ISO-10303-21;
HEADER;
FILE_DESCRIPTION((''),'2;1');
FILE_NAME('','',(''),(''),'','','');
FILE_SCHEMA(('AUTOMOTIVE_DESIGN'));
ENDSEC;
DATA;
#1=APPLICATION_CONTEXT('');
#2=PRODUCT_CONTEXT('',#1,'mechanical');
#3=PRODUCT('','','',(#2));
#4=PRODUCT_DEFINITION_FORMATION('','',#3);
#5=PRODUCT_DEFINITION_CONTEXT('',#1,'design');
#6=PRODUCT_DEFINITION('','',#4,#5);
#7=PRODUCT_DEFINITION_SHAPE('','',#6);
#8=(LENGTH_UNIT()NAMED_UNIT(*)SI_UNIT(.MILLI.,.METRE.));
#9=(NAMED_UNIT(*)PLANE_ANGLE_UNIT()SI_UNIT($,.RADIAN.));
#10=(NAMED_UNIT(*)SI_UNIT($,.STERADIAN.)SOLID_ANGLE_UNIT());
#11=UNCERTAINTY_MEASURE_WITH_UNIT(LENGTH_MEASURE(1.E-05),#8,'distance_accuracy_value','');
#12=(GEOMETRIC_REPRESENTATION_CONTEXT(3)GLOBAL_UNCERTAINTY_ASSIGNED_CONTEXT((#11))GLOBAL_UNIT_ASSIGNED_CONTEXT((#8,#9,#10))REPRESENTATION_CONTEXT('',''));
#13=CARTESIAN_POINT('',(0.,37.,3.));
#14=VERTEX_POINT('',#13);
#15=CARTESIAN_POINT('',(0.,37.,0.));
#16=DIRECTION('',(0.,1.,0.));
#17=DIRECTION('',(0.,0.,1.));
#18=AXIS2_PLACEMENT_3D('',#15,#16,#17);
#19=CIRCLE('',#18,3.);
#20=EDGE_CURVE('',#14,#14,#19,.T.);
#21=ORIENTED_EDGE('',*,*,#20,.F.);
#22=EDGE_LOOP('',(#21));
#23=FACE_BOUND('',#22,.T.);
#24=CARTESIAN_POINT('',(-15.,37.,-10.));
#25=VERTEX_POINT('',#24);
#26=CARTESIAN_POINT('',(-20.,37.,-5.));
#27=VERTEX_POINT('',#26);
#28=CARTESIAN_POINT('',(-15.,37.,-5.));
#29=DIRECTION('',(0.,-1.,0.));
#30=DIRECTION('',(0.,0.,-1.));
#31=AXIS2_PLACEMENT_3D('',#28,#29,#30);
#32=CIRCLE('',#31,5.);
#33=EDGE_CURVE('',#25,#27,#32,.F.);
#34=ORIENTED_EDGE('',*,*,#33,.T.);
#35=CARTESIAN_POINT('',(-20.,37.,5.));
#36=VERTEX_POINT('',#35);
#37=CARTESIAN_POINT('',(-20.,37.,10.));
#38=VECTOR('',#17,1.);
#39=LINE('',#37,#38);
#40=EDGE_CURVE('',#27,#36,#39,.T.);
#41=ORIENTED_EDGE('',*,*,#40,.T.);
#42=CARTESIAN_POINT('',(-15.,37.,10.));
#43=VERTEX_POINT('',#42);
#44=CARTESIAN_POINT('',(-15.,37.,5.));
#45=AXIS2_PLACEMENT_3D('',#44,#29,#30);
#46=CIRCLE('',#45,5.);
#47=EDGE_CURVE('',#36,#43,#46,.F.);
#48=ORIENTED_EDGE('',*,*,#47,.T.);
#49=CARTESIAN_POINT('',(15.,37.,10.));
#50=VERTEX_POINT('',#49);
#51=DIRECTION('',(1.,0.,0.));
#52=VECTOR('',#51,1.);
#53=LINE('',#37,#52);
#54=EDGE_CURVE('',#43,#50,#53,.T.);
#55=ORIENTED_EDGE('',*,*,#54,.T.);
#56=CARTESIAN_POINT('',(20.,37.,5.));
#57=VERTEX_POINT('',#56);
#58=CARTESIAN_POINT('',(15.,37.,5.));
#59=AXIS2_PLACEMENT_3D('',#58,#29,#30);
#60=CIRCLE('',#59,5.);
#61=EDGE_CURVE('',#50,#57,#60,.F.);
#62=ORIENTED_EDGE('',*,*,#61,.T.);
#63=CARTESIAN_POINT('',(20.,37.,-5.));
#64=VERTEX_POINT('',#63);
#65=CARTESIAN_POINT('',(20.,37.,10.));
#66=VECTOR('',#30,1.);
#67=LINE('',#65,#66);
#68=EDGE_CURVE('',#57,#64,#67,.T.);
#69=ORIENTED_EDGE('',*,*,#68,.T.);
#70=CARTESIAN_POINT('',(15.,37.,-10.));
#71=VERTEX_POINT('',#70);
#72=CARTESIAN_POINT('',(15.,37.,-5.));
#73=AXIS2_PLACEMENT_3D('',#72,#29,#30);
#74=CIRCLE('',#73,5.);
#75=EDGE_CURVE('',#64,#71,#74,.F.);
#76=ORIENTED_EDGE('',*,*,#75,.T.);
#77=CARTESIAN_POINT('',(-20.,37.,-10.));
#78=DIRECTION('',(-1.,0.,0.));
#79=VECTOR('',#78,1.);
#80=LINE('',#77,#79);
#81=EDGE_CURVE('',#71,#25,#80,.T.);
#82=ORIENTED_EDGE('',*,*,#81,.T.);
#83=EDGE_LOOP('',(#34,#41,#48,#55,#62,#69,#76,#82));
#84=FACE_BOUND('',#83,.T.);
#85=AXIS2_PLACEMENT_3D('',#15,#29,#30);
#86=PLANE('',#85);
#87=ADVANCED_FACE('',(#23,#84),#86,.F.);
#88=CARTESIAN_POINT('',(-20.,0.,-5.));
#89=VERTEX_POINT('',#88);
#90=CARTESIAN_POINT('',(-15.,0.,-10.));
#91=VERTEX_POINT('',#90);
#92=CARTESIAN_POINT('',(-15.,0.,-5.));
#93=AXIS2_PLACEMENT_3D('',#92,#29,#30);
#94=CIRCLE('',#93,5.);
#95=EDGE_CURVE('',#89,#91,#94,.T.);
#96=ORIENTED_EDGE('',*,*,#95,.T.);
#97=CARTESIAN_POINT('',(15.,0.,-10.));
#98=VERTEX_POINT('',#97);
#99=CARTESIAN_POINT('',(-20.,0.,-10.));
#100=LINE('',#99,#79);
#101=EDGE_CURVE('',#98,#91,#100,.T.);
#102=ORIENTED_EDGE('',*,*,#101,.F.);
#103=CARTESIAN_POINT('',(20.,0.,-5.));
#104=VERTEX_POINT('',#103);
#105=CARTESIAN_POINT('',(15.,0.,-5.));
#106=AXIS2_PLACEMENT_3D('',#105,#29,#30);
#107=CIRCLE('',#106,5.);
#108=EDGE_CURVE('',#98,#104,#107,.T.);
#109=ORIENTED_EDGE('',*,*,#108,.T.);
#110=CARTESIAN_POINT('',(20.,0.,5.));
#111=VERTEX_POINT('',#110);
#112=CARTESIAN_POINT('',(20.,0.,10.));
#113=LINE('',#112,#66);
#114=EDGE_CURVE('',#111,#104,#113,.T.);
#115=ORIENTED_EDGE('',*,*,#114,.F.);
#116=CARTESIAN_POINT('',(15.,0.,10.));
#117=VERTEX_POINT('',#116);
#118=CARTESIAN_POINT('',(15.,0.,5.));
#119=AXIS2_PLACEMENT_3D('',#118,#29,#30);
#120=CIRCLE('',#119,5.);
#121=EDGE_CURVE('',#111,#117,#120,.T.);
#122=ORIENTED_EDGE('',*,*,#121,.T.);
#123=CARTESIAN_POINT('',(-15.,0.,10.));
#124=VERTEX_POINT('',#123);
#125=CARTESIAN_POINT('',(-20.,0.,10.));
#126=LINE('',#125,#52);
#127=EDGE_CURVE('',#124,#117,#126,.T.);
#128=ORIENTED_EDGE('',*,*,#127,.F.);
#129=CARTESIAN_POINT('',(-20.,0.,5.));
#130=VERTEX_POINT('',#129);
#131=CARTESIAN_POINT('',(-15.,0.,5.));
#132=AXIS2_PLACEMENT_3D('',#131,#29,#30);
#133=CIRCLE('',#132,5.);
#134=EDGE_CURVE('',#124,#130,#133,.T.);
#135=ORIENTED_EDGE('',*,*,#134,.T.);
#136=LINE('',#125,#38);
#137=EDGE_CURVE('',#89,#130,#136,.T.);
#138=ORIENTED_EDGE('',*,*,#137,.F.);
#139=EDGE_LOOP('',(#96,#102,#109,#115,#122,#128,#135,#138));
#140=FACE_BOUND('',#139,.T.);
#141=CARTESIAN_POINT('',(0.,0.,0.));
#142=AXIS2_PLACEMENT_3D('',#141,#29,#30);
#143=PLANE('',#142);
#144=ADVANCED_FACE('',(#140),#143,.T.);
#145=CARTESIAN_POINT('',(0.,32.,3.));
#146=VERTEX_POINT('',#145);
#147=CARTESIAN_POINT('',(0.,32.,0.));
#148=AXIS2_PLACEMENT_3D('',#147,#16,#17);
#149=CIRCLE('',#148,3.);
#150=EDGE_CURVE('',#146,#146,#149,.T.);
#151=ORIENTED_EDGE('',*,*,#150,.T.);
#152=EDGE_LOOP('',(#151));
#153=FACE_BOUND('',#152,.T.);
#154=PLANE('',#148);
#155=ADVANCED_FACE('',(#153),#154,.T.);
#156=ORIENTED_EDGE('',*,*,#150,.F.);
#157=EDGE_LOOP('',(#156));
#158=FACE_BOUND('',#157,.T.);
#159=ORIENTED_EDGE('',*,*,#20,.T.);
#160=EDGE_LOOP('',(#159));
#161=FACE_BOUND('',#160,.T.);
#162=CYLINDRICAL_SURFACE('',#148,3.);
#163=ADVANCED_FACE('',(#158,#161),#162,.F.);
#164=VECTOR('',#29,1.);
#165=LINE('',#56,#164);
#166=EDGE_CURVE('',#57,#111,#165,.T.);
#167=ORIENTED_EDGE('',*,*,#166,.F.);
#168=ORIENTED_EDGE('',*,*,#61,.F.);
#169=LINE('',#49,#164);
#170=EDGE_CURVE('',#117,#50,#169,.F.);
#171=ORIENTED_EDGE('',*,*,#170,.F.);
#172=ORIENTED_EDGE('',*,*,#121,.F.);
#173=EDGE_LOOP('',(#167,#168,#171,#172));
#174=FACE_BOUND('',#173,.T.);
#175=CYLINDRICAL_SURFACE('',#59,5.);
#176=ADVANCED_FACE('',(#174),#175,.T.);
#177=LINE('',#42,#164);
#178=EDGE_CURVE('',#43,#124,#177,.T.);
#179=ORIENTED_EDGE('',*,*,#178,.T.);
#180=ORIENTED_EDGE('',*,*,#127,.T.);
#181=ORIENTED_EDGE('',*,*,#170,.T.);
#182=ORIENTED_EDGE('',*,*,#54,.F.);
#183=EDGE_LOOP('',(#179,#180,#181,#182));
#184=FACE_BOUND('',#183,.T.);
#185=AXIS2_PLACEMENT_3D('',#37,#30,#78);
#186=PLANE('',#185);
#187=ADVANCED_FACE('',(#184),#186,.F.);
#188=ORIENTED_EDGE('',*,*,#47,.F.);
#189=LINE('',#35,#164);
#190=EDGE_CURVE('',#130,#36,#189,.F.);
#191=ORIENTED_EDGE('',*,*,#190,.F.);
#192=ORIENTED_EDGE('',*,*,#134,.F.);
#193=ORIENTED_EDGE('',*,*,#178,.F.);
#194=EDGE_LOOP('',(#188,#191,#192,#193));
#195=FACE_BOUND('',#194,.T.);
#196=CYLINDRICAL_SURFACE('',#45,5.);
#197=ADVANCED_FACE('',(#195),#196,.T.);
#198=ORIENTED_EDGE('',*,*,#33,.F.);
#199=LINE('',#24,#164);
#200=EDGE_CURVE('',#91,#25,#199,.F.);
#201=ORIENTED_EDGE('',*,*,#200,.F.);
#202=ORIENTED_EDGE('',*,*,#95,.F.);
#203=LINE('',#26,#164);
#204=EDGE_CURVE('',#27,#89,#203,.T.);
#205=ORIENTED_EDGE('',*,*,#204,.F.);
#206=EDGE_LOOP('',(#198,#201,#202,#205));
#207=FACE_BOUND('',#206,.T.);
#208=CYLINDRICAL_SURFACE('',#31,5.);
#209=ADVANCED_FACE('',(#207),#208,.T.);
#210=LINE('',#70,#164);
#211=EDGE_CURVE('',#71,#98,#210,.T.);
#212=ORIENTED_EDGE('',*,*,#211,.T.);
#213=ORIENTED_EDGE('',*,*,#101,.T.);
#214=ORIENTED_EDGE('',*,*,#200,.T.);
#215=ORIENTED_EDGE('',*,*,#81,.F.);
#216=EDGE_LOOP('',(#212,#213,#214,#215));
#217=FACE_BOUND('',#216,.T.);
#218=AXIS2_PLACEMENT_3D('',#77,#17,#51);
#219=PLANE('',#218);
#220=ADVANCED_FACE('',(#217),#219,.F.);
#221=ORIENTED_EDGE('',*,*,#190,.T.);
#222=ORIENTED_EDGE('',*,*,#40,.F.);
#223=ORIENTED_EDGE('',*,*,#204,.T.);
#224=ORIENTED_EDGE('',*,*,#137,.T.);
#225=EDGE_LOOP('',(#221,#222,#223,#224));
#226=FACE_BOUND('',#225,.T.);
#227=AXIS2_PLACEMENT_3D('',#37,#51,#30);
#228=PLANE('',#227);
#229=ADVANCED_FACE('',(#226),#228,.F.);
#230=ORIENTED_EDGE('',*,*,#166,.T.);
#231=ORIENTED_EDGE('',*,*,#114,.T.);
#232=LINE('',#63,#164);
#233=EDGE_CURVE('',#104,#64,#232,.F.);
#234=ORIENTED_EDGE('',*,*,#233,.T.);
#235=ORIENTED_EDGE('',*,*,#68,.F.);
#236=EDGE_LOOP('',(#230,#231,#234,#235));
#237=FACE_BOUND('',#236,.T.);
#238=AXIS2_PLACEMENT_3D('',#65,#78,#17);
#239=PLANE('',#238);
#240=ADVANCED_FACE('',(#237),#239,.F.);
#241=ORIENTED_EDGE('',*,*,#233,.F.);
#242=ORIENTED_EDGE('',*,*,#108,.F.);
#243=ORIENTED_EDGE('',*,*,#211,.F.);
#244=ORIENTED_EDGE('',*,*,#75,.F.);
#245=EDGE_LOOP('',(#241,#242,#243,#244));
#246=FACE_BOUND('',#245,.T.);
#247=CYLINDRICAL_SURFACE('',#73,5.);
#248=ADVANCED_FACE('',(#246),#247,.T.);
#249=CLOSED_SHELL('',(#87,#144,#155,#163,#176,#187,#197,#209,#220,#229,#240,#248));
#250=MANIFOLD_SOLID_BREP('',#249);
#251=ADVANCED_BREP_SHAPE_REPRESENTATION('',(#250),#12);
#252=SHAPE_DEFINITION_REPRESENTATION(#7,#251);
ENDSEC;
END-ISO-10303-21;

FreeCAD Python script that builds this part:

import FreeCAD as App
import Part
import Sketcher
Q = App.Units.Quantity


def edges_at(feature, points):
    """Names of the edges that pass closest to the given points."""
    edges = feature.Shape.Edges
    near = lambda p: min(range(len(edges)), key=lambda i: edges[i].distToShape(Part.Vertex(*p))[0])
    return sorted({f"Edge{near(p) + 1}" for p in points})

doc = App.newDocument("Part")
body = doc.addObject("PartDesign::Body", "Body")

# Sketch on XZ plane
sketch1 = doc.addObject("Sketcher::SketchObject", "Sketch")
body.addObject(sketch1)
sketch1.AttachmentSupport = (doc.XZ_Plane, [""])
sketch1.MapMode = "FlatFace"
sketch1.addGeometry([
    Part.LineSegment(App.Vector(-20, -10, 0), App.Vector(-20, 10, 0)),
    Part.LineSegment(App.Vector(-20, 10, 0), App.Vector(20, 10, 0)),
    Part.LineSegment(App.Vector(20, 10, 0), App.Vector(20, -10, 0)),
    Part.LineSegment(App.Vector(20, -10, 0), App.Vector(-20, -10, 0)),
], False)
sketch1.addConstraint([
    Sketcher.Constraint("Coincident", 0, 2, 1, 1),
    Sketcher.Constraint("Coincident", 1, 2, 2, 1),
    Sketcher.Constraint("Coincident", 2, 2, 3, 1),
    Sketcher.Constraint("Coincident", 3, 2, 0, 1),
    Sketcher.Constraint("Vertical", 0),
    Sketcher.Constraint("Horizontal", 1),
    Sketcher.Constraint("Vertical", 2),
    Sketcher.Constraint("Horizontal", 3),
    Sketcher.Constraint("Symmetric", 0, 2, 2, 2, -1, 1),
    Sketcher.Constraint("DistanceX", 1, 1, 1, 2, Q("40 mm")),
    Sketcher.Constraint("DistanceY", 0, 1, 0, 2, Q("20 mm")),
])
pad1 = doc.addObject("PartDesign::Pad", "Pad")
body.addObject(pad1)
pad1.Profile = sketch1
pad1.Length = 37
pad1.Reversed = True
doc.recompute()

fillet = doc.addObject("PartDesign::Fillet", "Fillet")
body.addObject(fillet)
fillet.Base = (pad1, edges_at(pad1, [
    (20, 18.5, 10),
    (-20, 18.5, 10),
    (-20, 18.5, -10),
    (20, 18.5, -10),
]))
fillet.Radius = 5

# Sketch on XZ plane
sketch2 = doc.addObject("Sketcher::SketchObject", "Sketch001")
body.addObject(sketch2)
sketch2.AttachmentSupport = (doc.XZ_Plane, [""])
sketch2.MapMode = "FlatFace"
sketch2.AttachmentOffset = App.Placement(App.Vector(0, 0, -37), App.Rotation())
sketch2.addGeometry(Part.Circle(App.Vector(0, 0, 0), App.Vector(0, 0, 1), 3), False)
sketch2.addConstraint([
    Sketcher.Constraint("Coincident", 0, 3, -1, 1),
    Sketcher.Constraint("Diameter", 0, Q("6 mm")),
])
pocket1 = doc.addObject("PartDesign::Pocket", "Pocket")
body.addObject(pocket1)
pocket1.Profile = sketch2
pocket1.Length = 5
pocket1.Reversed = True

doc.recompute()
